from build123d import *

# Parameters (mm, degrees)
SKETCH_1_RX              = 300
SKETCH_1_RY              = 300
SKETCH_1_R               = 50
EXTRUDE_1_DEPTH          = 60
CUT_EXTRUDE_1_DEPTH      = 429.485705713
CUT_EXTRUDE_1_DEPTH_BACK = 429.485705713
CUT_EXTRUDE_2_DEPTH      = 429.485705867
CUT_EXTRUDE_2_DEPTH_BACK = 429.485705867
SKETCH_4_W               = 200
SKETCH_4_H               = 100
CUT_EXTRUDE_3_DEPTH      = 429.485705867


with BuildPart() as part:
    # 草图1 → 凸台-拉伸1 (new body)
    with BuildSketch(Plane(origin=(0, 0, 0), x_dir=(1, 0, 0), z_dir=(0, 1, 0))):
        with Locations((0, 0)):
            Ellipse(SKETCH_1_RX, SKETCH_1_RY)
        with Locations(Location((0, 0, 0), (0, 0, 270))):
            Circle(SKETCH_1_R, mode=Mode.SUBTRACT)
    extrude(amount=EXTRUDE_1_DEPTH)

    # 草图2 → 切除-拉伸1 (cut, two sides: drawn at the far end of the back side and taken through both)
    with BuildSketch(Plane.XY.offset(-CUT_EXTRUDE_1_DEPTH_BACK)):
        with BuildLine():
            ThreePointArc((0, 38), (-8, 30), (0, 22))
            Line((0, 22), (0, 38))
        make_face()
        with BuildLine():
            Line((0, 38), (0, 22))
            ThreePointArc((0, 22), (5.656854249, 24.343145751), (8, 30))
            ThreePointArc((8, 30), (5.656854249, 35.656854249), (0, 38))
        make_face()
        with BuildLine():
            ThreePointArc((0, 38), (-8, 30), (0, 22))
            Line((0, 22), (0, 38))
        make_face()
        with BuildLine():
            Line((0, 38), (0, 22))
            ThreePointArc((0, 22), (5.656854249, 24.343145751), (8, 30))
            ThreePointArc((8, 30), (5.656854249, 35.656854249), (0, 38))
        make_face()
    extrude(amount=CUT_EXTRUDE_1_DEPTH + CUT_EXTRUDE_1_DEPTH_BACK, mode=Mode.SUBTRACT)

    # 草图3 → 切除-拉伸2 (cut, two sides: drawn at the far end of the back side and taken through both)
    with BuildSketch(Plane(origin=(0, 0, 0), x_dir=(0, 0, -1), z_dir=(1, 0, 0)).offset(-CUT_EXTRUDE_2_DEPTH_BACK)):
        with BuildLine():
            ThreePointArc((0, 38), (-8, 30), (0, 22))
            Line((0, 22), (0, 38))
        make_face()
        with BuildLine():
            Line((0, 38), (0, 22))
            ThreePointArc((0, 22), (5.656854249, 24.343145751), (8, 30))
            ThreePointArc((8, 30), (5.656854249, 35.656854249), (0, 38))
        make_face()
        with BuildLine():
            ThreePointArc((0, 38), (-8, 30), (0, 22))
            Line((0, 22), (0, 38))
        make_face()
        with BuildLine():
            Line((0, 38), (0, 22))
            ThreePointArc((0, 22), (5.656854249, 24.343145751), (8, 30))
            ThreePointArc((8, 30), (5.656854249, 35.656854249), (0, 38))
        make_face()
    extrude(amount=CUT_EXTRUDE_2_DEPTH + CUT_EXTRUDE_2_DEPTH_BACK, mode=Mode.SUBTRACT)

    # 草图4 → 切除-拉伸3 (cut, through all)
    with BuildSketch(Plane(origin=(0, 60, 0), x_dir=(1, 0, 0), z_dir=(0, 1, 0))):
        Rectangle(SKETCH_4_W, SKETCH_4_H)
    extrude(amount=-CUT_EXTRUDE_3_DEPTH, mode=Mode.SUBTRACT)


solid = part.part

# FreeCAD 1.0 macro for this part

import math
import FreeCAD as App
import Part
import Sketcher

V = App.Vector

doc = App.newDocument("Part")
body = doc.addObject("PartDesign::Body", "Body")

# Sketch on XZ plane
sketch1 = doc.addObject("Sketcher::SketchObject", "Sketch")
body.addObject(sketch1)
sketch1.AttachmentSupport = (doc.XZ_Plane, [""])
sketch1.MapMode = "FlatFace"
sketch1.addGeometry([
    Part.Ellipse(V(300, 0, 0), V(0, 300, 0), V(0, 0, 0)),
    Part.Circle(V(0, 0, 0), V(0, 0, 1), 50),
], False)
sketch1.addConstraint([
    Sketcher.Constraint("Block", 0),
    Sketcher.Constraint("Coincident", 1, 3, -1, 1),
    Sketcher.Constraint("Diameter", 1, 100.0),
])
pad1 = doc.addObject("PartDesign::Pad", "Pad")
body.addObject(pad1)
pad1.Profile = sketch1
pad1.Length = 60
pad1.Reversed = True

# Sketch on XY plane
sketch2 = doc.addObject("Sketcher::SketchObject", "Sketch001")
body.addObject(sketch2)
sketch2.AttachmentSupport = (doc.XY_Plane, [""])
sketch2.MapMode = "FlatFace"
sketch2.addGeometry([
    Part.ArcOfCircle(Part.Circle(V(0, 30, 0), V(0, 0, 1), 8), math.radians(90), math.radians(270)),
    Part.ArcOfCircle(Part.Circle(V(0, 30, 0), V(0, 0, 1), 8), math.radians(-90), math.radians(0)),
    Part.ArcOfCircle(Part.Circle(V(0, 30, 0), V(0, 0, 1), 8), math.radians(0), math.radians(90)),
], False)
sketch2.addConstraint([
    Sketcher.Constraint("Tangent", 0, 2, 1, 1),
    Sketcher.Constraint("Tangent", 1, 2, 2, 1),
    Sketcher.Constraint("Tangent", 2, 2, 0, 1),
    Sketcher.Constraint("PointOnObject", 0, 3, -2),
    Sketcher.Constraint("PointOnObject", 0, 2, -2),
    Sketcher.Constraint("PointOnObject", 2, 2, -2),
    Sketcher.Constraint("Horizontal", 2, 3, 1, 2),
    Sketcher.Constraint("Radius", 0, 8.0),
    Sketcher.Constraint("DistanceY", -1, 1, 0, 3, 30.0),
])
pocket1 = doc.addObject("PartDesign::Pocket", "Pocket")
body.addObject(pocket1)
pocket1.Profile = sketch2
pocket1.Type = "ThroughAll"
pocket1.Midplane = True

# Sketch on YZ plane
sketch3 = doc.addObject("Sketcher::SketchObject", "Sketch002")
body.addObject(sketch3)
sketch3.AttachmentSupport = (doc.YZ_Plane, [""])
sketch3.MapMode = "FlatFace"
sketch3.addGeometry([
    Part.ArcOfCircle(Part.Circle(V(30, 0, 0), V(0, 0, 1), 8), math.radians(0), math.radians(180)),
    Part.ArcOfCircle(Part.Circle(V(30, 0, 0), V(0, 0, 1), 8), math.radians(-180), math.radians(-90)),
    Part.ArcOfCircle(Part.Circle(V(30, 0, 0), V(0, 0, 1), 8), math.radians(-90), math.radians(0)),
], False)
sketch3.addConstraint([
    Sketcher.Constraint("Tangent", 0, 2, 1, 1),
    Sketcher.Constraint("Tangent", 1, 2, 2, 1),
    Sketcher.Constraint("Tangent", 2, 2, 0, 1),
    Sketcher.Constraint("PointOnObject", 0, 3, -1),
    Sketcher.Constraint("PointOnObject", 0, 2, -1),
    Sketcher.Constraint("PointOnObject", 2, 2, -1),
    Sketcher.Constraint("Vertical", 2, 3, 1, 2),
    Sketcher.Constraint("Radius", 0, 8.0),
    Sketcher.Constraint("DistanceX", -1, 1, 0, 3, 30.0),
])
pocket2 = doc.addObject("PartDesign::Pocket", "Pocket001")
body.addObject(pocket2)
pocket2.Profile = sketch3
pocket2.Type = "ThroughAll"
pocket2.Midplane = True

# Sketch on XZ plane
sketch4 = doc.addObject("Sketcher::SketchObject", "Sketch003")
body.addObject(sketch4)
sketch4.AttachmentSupport = (doc.XZ_Plane, [""])
sketch4.MapMode = "FlatFace"
sketch4.AttachmentOffset = App.Placement(V(0, 0, -60), App.Rotation())
sketch4.addGeometry([
    Part.LineSegment(V(-100, -50, 0), V(-100, 50, 0)),
    Part.LineSegment(V(-100, 50, 0), V(100, 50, 0)),
    Part.LineSegment(V(100, 50, 0), V(100, -50, 0)),
    Part.LineSegment(V(100, -50, 0), V(-100, -50, 0)),
], False)
sketch4.addConstraint([
    Sketcher.Constraint("Coincident", 0, 2, 1, 1),
    Sketcher.Constraint("Coincident", 1, 2, 2, 1),
    Sketcher.Constraint("Coincident", 2, 2, 3, 1),
    Sketcher.Constraint("Coincident", 3, 2, 0, 1),
    Sketcher.Constraint("Vertical", 0),
    Sketcher.Constraint("Horizontal", 1),
    Sketcher.Constraint("Vertical", 2),
    Sketcher.Constraint("Horizontal", 3),
    Sketcher.Constraint("Symmetric", 0, 2, 2, 2, -1, 1),
    Sketcher.Constraint("DistanceX", 1, 1, 1, 2, 200.0),
    Sketcher.Constraint("DistanceY", 0, 1, 0, 2, 100.0),
])
pocket3 = doc.addObject("PartDesign::Pocket", "Pocket002")
body.addObject(pocket3)
pocket3.Profile = sketch4
pocket3.Type = "ThroughAll"
pocket3.Reversed = True

doc.recompute()
